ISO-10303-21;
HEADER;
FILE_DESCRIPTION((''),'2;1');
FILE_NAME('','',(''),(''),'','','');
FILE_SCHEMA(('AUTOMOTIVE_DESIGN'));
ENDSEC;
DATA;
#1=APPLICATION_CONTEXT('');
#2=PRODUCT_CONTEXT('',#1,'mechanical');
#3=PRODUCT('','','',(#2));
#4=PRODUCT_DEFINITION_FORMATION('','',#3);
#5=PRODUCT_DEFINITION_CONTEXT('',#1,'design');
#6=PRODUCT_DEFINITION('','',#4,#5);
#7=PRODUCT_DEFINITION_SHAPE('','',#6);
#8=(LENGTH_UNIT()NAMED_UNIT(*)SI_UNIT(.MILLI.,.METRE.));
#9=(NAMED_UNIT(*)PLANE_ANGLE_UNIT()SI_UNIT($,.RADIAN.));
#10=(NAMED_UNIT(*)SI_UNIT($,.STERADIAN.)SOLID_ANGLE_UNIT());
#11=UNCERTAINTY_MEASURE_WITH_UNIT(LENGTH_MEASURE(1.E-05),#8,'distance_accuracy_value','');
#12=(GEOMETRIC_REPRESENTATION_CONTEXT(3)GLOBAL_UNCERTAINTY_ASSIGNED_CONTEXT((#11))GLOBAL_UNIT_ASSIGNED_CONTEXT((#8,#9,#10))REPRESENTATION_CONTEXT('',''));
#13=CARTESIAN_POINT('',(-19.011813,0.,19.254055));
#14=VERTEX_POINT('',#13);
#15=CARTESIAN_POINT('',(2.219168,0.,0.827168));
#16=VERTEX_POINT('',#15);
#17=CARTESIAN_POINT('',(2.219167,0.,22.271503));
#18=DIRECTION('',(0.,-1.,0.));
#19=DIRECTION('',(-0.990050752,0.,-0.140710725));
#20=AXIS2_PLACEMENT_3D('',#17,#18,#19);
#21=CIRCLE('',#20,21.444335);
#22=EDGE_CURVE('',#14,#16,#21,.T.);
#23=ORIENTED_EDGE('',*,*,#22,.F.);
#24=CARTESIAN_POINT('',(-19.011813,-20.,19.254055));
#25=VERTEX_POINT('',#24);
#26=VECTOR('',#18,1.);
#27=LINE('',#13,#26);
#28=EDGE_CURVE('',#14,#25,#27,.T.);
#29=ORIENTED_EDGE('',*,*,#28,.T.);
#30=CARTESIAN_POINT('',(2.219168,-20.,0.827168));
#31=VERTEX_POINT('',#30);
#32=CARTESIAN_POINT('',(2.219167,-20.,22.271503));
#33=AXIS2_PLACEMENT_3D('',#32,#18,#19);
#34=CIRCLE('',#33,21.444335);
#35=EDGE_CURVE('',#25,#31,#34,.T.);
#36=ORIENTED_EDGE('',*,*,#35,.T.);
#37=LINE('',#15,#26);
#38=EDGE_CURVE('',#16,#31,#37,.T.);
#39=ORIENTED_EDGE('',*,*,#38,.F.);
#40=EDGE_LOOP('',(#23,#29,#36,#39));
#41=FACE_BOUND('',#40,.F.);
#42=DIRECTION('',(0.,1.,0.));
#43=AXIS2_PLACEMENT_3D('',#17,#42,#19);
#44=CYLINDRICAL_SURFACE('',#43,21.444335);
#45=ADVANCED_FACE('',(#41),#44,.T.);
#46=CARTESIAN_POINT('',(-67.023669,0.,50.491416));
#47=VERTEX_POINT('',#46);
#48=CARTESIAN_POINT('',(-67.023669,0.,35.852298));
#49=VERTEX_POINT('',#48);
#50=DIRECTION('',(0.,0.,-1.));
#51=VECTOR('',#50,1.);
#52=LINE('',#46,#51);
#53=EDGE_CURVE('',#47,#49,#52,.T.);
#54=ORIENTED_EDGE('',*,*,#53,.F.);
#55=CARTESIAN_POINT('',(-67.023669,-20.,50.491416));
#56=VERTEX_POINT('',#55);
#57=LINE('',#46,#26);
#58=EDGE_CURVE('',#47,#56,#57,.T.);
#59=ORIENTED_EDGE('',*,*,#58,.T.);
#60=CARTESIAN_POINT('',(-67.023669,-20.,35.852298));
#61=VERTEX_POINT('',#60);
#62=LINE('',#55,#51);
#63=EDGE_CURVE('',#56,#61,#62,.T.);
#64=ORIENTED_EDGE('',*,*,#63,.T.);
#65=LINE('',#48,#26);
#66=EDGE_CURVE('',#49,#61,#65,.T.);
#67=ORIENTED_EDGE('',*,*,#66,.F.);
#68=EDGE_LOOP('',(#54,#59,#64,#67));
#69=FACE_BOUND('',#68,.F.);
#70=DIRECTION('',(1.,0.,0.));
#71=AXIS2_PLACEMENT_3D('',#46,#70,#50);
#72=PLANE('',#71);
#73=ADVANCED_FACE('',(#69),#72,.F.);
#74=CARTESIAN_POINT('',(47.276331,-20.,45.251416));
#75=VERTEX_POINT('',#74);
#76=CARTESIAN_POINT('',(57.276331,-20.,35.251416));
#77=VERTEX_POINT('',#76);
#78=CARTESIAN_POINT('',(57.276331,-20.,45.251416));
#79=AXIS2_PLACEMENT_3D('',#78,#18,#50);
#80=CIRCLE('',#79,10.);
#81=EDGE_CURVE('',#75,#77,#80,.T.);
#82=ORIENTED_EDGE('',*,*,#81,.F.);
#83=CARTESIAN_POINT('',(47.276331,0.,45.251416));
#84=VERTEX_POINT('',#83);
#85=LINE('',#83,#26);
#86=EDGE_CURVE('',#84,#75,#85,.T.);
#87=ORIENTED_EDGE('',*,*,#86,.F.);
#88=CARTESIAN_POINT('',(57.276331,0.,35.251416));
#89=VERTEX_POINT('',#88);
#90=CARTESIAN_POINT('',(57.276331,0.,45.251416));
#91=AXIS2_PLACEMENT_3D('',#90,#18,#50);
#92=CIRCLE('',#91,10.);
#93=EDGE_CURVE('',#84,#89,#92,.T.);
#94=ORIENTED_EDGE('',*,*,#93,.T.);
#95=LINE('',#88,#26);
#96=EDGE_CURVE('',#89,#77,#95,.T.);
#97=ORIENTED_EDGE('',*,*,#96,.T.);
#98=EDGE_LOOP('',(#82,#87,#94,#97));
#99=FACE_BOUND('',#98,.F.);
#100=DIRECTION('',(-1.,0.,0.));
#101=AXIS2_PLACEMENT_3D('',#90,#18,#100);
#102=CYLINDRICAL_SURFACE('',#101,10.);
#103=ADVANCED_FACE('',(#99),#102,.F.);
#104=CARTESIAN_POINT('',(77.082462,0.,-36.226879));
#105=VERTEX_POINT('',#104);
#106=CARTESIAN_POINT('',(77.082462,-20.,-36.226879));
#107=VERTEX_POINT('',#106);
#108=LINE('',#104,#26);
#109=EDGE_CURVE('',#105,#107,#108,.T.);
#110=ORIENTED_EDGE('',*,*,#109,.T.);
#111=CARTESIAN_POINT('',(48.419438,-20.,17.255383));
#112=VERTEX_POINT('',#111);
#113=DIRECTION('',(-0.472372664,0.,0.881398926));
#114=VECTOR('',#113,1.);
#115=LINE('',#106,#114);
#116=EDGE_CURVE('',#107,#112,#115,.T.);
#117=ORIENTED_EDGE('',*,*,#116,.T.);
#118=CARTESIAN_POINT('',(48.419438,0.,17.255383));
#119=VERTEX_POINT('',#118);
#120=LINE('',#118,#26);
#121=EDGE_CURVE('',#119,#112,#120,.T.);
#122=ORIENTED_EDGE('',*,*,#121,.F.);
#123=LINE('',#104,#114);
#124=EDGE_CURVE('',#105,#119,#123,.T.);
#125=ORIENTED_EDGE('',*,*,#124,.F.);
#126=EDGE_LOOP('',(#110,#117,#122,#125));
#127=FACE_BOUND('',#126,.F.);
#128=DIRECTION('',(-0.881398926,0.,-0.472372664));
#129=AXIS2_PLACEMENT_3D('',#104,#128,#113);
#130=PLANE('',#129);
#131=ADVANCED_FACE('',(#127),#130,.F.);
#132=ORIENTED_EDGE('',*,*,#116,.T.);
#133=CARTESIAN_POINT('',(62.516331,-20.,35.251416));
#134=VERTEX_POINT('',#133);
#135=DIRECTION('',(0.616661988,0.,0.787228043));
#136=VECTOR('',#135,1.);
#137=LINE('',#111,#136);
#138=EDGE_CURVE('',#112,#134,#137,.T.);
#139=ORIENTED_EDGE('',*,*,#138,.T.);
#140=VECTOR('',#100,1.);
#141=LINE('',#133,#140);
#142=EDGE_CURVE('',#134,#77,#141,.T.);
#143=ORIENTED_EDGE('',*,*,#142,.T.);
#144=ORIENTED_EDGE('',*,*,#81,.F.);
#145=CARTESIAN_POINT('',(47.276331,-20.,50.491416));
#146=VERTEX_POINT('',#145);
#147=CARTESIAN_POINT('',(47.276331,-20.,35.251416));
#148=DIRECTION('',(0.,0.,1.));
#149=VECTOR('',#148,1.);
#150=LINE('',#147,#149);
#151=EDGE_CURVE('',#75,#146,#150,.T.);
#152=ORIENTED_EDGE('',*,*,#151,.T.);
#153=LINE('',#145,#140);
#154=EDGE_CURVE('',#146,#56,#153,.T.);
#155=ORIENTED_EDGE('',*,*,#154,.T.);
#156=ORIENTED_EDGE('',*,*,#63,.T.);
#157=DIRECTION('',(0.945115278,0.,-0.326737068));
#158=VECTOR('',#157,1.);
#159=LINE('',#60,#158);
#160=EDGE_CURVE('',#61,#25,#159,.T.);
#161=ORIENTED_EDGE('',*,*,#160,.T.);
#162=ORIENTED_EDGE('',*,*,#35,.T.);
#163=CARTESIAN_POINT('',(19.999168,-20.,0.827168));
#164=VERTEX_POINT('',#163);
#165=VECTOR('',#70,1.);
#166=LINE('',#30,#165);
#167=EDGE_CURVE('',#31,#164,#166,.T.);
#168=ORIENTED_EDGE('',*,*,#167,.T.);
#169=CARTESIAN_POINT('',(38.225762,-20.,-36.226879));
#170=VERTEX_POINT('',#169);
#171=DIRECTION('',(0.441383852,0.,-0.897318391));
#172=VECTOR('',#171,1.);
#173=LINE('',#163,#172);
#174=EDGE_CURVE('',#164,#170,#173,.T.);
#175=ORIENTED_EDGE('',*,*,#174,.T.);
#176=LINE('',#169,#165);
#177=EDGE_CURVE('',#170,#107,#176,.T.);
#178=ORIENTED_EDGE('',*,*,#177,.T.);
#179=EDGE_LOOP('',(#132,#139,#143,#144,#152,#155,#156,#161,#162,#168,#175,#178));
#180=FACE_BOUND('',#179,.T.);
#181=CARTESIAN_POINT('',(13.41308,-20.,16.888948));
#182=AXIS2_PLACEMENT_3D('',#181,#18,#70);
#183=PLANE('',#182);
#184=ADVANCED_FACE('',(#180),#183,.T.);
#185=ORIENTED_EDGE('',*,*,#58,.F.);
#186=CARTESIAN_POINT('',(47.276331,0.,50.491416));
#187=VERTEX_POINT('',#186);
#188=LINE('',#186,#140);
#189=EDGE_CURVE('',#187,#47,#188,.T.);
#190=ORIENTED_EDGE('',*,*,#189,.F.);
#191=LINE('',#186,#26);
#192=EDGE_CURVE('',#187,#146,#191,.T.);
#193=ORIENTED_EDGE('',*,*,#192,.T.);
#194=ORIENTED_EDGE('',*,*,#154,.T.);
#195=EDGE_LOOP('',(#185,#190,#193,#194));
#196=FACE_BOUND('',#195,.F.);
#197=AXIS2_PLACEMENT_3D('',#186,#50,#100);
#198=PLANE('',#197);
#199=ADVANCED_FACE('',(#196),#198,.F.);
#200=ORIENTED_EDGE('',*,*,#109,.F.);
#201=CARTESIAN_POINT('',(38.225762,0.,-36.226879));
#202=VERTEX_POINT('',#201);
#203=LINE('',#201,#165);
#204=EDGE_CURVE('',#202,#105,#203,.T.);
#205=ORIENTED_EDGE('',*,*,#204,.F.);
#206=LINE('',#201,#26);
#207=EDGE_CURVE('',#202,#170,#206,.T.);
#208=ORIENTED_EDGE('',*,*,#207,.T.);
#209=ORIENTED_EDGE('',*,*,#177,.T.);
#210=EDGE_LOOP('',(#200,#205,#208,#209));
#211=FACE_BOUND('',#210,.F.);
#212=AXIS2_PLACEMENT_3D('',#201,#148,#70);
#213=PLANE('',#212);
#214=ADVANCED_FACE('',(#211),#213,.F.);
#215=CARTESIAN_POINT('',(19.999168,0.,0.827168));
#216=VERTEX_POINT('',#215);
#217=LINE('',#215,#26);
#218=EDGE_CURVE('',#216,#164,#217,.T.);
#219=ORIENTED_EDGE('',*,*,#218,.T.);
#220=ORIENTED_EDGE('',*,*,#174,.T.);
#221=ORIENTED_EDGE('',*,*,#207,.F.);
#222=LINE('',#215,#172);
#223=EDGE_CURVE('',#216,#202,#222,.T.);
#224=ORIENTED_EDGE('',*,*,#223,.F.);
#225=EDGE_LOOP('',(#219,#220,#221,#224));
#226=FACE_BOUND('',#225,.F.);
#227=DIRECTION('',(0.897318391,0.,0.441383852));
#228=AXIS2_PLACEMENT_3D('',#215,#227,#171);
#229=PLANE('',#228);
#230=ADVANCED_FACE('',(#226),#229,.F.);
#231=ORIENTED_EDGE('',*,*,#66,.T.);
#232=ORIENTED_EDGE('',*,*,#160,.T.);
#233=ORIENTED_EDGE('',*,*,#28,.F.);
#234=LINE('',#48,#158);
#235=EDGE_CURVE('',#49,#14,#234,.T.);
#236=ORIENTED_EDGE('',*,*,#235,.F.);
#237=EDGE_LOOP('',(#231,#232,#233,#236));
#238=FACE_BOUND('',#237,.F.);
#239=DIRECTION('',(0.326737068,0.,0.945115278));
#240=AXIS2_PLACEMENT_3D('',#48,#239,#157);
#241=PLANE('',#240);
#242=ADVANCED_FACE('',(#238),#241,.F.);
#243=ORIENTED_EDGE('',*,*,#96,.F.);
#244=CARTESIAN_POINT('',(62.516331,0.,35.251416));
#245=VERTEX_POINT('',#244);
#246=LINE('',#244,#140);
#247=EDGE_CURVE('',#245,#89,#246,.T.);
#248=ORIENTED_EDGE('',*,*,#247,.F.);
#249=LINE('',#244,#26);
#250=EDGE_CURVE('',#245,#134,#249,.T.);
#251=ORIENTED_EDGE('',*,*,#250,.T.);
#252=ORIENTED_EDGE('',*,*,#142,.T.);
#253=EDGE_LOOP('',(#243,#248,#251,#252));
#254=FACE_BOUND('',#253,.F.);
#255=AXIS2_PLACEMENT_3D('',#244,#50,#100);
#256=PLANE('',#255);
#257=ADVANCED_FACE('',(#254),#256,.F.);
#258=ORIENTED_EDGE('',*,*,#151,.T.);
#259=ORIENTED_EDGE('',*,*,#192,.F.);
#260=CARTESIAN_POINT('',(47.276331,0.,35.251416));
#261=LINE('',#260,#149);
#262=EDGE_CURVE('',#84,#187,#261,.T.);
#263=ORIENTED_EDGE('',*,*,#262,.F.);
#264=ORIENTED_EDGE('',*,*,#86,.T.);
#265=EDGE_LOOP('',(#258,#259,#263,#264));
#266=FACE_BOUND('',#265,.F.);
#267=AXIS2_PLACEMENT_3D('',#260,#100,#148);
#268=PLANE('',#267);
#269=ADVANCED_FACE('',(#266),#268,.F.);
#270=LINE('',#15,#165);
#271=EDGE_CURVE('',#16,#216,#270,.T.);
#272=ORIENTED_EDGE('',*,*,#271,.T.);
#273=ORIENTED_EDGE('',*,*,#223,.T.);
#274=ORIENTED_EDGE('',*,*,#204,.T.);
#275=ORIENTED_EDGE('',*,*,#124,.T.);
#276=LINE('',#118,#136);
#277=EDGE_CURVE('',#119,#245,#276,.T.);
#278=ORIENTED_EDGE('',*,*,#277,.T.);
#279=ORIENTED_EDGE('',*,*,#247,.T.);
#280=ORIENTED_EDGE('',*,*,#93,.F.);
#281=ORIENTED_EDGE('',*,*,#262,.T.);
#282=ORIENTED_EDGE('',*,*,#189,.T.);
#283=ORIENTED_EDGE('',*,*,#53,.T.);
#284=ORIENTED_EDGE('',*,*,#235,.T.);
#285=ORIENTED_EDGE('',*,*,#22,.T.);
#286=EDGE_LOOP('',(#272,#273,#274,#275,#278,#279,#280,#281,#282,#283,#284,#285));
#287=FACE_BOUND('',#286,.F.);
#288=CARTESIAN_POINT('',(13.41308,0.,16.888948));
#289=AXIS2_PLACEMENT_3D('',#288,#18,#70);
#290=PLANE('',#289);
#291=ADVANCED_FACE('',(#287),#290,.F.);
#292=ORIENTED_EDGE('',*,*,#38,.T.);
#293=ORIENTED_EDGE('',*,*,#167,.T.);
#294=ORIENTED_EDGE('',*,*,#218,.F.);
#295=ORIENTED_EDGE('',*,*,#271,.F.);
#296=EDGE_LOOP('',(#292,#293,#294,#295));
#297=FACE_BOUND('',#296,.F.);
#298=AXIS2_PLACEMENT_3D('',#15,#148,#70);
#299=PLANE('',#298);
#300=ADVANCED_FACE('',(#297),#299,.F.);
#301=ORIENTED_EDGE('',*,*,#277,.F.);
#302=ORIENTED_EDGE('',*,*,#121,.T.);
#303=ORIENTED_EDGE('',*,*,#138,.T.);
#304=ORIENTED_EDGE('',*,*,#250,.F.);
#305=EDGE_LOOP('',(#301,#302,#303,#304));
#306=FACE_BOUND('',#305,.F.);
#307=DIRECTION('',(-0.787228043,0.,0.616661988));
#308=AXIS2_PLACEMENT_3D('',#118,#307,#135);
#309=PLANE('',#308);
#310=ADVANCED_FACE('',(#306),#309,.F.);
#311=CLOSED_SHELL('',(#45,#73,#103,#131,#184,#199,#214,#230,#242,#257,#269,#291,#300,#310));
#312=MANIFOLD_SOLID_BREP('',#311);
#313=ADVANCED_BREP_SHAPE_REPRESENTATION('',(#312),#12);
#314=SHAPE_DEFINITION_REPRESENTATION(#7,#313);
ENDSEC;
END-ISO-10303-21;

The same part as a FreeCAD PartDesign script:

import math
import FreeCAD as App
import Part
import Sketcher

V = App.Vector
Q = App.Units.Quantity


def edges_at(feature, points):
    """Names of the edges that pass closest to the given points."""
    edges = feature.Shape.Edges
    near = lambda p: min(range(len(edges)), key=lambda i: edges[i].distToShape(Part.Vertex(*p))[0])
    return sorted({f"Edge{near(p) + 1}" for p in points})

doc = App.newDocument("Part")
params = doc.addObject("Spreadsheet::Sheet", "Params")
for row, (alias, value) in enumerate([
    ("sketch1_length", "2 in"),
    ("sketch1_width", "4.5 in"),
    ("sketch1_width2", "0.7 in"),
    ("sketch1_width3", "0.6 in"),
    ("sketch1_length2", "0.9 in"),
    ("pad1_length", "20 mm"),
    ("fillet_radius", "10 mm"),
], start=1):
    params.set(f"A{row}", alias)
    params.set(f"B{row}", "=" + value)
    params.setAlias(f"B{row}", alias)

body = doc.addObject("PartDesign::Body", "Body")

sketch1 = doc.addObject("Sketcher::SketchObject", "Sketch")
body.addObject(sketch1)
sketch1.AttachmentSupport = (doc.XZ_Plane, [""])
sketch1.MapMode = "FlatFace"
sketch1.addGeometry([
    Part.LineSegment(V(47, 35, 0), V(47, 50, 0)),
    Part.LineSegment(V(47, 50, 0), V(-67, 50, 0)),
    Part.LineSegment(V(-67, 50, 0), V(-67, 36, 0)),
    Part.LineSegment(V(-67, 36, 0), V(-19, 19, 0)),
    Part.ArcOfCircle(Part.Circle(V(2, 22, 0), V(0, 0, 1), 21), math.radians(-172), math.radians(-90)),
    Part.LineSegment(V(2, 1, 0), V(20, 1, 0)),
    Part.LineSegment(V(20, 1, 0), V(38, -36, 0)),
    Part.LineSegment(V(38, -36, 0), V(77, -36, 0)),
    Part.LineSegment(V(77, -36, 0), V(48, 17, 0)),
    Part.LineSegment(V(48, 17, 0), V(63, 35, 0)),
    Part.LineSegment(V(63, 35, 0), V(47, 35, 0)),
], False)
sketch1.addConstraint([
    Sketcher.Constraint("Coincident", 0, 2, 1, 1),
    Sketcher.Constraint("Coincident", 1, 2, 2, 1),
    Sketcher.Constraint("Coincident", 2, 2, 3, 1),
    Sketcher.Constraint("Coincident", 3, 2, 4, 1),
    Sketcher.Constraint("Tangent", 4, 2, 5, 1),
    Sketcher.Constraint("Coincident", 5, 2, 6, 1),
    Sketcher.Constraint("Coincident", 6, 2, 7, 1),
    Sketcher.Constraint("Coincident", 7, 2, 8, 1),
    Sketcher.Constraint("Coincident", 8, 2, 9, 1),
    Sketcher.Constraint("Coincident", 9, 2, 10, 1),
    Sketcher.Constraint("Coincident", 10, 2, 0, 1),
    Sketcher.Constraint("Vertical", 0),
    Sketcher.Constraint("Horizontal", 1),
    Sketcher.Constraint("Vertical", 2),
    Sketcher.Constraint("Horizontal", 5),
    Sketcher.Constraint("Horizontal", 7),
    Sketcher.Constraint("Horizontal", 10),
    Sketcher.Constraint("Equal", 10, 0),
    Sketcher.Constraint("Distance", 3, Q("2 in")),
    Sketcher.Constraint("DistanceX", 1, 2, 1, 1, Q("4.5 in")),
    Sketcher.Constraint("DistanceX", 5, 1, 5, 2, Q("0.7 in")),
    Sketcher.Constraint("DistanceX", 10, 2, 10, 1, Q("0.6 in")),
    Sketcher.Constraint("Distance", 9, Q("0.9 in")),
    Sketcher.Constraint("DistanceX", 7, 1, 7, 2, 38.8567),
    Sketcher.Constraint("Radius", 4, 21.444335),
    Sketcher.Constraint("DistanceY", 2, 2, 2, 1, 14.639118),
    Sketcher.Constraint("DistanceX", -1, 1, 0, 2, 47.276331),
    Sketcher.Constraint("DistanceX", -1, 1, 4, 2, 2.219168),
    Sketcher.Constraint("DistanceY", -1, 1, 4, 2, 0.827168),
    Sketcher.Constraint("DistanceY", 6, 2, -1, 1, 36.226879),
    Sketcher.Constraint("DistanceX", 3, 2, 4, 3, 21.23098),
    Sketcher.Constraint("DistanceX", 6, 2, 0, 2, 9.050569),
    Sketcher.Constraint("DistanceX", 5, 2, 8, 2, 28.42027),
])
sketch1.setExpression("Constraints[18]", "Params.sketch1_length")
sketch1.setExpression("Constraints[19]", "Params.sketch1_width")
sketch1.setExpression("Constraints[20]", "Params.sketch1_width2")
sketch1.setExpression("Constraints[21]", "Params.sketch1_width3")
sketch1.setExpression("Constraints[22]", "Params.sketch1_length2")
pad1 = doc.addObject("PartDesign::Pad", "Pad")
body.addObject(pad1)
pad1.Profile = sketch1
pad1.setExpression("Length", "Params.pad1_length")
doc.recompute()

fillet = doc.addObject("PartDesign::Fillet", "Fillet")
body.addObject(fillet)
fillet.Base = (pad1, edges_at(pad1, [(47.276, -10, 35.251)]))
fillet.setExpression("Radius", "Params.fillet_radius")

doc.recompute()
